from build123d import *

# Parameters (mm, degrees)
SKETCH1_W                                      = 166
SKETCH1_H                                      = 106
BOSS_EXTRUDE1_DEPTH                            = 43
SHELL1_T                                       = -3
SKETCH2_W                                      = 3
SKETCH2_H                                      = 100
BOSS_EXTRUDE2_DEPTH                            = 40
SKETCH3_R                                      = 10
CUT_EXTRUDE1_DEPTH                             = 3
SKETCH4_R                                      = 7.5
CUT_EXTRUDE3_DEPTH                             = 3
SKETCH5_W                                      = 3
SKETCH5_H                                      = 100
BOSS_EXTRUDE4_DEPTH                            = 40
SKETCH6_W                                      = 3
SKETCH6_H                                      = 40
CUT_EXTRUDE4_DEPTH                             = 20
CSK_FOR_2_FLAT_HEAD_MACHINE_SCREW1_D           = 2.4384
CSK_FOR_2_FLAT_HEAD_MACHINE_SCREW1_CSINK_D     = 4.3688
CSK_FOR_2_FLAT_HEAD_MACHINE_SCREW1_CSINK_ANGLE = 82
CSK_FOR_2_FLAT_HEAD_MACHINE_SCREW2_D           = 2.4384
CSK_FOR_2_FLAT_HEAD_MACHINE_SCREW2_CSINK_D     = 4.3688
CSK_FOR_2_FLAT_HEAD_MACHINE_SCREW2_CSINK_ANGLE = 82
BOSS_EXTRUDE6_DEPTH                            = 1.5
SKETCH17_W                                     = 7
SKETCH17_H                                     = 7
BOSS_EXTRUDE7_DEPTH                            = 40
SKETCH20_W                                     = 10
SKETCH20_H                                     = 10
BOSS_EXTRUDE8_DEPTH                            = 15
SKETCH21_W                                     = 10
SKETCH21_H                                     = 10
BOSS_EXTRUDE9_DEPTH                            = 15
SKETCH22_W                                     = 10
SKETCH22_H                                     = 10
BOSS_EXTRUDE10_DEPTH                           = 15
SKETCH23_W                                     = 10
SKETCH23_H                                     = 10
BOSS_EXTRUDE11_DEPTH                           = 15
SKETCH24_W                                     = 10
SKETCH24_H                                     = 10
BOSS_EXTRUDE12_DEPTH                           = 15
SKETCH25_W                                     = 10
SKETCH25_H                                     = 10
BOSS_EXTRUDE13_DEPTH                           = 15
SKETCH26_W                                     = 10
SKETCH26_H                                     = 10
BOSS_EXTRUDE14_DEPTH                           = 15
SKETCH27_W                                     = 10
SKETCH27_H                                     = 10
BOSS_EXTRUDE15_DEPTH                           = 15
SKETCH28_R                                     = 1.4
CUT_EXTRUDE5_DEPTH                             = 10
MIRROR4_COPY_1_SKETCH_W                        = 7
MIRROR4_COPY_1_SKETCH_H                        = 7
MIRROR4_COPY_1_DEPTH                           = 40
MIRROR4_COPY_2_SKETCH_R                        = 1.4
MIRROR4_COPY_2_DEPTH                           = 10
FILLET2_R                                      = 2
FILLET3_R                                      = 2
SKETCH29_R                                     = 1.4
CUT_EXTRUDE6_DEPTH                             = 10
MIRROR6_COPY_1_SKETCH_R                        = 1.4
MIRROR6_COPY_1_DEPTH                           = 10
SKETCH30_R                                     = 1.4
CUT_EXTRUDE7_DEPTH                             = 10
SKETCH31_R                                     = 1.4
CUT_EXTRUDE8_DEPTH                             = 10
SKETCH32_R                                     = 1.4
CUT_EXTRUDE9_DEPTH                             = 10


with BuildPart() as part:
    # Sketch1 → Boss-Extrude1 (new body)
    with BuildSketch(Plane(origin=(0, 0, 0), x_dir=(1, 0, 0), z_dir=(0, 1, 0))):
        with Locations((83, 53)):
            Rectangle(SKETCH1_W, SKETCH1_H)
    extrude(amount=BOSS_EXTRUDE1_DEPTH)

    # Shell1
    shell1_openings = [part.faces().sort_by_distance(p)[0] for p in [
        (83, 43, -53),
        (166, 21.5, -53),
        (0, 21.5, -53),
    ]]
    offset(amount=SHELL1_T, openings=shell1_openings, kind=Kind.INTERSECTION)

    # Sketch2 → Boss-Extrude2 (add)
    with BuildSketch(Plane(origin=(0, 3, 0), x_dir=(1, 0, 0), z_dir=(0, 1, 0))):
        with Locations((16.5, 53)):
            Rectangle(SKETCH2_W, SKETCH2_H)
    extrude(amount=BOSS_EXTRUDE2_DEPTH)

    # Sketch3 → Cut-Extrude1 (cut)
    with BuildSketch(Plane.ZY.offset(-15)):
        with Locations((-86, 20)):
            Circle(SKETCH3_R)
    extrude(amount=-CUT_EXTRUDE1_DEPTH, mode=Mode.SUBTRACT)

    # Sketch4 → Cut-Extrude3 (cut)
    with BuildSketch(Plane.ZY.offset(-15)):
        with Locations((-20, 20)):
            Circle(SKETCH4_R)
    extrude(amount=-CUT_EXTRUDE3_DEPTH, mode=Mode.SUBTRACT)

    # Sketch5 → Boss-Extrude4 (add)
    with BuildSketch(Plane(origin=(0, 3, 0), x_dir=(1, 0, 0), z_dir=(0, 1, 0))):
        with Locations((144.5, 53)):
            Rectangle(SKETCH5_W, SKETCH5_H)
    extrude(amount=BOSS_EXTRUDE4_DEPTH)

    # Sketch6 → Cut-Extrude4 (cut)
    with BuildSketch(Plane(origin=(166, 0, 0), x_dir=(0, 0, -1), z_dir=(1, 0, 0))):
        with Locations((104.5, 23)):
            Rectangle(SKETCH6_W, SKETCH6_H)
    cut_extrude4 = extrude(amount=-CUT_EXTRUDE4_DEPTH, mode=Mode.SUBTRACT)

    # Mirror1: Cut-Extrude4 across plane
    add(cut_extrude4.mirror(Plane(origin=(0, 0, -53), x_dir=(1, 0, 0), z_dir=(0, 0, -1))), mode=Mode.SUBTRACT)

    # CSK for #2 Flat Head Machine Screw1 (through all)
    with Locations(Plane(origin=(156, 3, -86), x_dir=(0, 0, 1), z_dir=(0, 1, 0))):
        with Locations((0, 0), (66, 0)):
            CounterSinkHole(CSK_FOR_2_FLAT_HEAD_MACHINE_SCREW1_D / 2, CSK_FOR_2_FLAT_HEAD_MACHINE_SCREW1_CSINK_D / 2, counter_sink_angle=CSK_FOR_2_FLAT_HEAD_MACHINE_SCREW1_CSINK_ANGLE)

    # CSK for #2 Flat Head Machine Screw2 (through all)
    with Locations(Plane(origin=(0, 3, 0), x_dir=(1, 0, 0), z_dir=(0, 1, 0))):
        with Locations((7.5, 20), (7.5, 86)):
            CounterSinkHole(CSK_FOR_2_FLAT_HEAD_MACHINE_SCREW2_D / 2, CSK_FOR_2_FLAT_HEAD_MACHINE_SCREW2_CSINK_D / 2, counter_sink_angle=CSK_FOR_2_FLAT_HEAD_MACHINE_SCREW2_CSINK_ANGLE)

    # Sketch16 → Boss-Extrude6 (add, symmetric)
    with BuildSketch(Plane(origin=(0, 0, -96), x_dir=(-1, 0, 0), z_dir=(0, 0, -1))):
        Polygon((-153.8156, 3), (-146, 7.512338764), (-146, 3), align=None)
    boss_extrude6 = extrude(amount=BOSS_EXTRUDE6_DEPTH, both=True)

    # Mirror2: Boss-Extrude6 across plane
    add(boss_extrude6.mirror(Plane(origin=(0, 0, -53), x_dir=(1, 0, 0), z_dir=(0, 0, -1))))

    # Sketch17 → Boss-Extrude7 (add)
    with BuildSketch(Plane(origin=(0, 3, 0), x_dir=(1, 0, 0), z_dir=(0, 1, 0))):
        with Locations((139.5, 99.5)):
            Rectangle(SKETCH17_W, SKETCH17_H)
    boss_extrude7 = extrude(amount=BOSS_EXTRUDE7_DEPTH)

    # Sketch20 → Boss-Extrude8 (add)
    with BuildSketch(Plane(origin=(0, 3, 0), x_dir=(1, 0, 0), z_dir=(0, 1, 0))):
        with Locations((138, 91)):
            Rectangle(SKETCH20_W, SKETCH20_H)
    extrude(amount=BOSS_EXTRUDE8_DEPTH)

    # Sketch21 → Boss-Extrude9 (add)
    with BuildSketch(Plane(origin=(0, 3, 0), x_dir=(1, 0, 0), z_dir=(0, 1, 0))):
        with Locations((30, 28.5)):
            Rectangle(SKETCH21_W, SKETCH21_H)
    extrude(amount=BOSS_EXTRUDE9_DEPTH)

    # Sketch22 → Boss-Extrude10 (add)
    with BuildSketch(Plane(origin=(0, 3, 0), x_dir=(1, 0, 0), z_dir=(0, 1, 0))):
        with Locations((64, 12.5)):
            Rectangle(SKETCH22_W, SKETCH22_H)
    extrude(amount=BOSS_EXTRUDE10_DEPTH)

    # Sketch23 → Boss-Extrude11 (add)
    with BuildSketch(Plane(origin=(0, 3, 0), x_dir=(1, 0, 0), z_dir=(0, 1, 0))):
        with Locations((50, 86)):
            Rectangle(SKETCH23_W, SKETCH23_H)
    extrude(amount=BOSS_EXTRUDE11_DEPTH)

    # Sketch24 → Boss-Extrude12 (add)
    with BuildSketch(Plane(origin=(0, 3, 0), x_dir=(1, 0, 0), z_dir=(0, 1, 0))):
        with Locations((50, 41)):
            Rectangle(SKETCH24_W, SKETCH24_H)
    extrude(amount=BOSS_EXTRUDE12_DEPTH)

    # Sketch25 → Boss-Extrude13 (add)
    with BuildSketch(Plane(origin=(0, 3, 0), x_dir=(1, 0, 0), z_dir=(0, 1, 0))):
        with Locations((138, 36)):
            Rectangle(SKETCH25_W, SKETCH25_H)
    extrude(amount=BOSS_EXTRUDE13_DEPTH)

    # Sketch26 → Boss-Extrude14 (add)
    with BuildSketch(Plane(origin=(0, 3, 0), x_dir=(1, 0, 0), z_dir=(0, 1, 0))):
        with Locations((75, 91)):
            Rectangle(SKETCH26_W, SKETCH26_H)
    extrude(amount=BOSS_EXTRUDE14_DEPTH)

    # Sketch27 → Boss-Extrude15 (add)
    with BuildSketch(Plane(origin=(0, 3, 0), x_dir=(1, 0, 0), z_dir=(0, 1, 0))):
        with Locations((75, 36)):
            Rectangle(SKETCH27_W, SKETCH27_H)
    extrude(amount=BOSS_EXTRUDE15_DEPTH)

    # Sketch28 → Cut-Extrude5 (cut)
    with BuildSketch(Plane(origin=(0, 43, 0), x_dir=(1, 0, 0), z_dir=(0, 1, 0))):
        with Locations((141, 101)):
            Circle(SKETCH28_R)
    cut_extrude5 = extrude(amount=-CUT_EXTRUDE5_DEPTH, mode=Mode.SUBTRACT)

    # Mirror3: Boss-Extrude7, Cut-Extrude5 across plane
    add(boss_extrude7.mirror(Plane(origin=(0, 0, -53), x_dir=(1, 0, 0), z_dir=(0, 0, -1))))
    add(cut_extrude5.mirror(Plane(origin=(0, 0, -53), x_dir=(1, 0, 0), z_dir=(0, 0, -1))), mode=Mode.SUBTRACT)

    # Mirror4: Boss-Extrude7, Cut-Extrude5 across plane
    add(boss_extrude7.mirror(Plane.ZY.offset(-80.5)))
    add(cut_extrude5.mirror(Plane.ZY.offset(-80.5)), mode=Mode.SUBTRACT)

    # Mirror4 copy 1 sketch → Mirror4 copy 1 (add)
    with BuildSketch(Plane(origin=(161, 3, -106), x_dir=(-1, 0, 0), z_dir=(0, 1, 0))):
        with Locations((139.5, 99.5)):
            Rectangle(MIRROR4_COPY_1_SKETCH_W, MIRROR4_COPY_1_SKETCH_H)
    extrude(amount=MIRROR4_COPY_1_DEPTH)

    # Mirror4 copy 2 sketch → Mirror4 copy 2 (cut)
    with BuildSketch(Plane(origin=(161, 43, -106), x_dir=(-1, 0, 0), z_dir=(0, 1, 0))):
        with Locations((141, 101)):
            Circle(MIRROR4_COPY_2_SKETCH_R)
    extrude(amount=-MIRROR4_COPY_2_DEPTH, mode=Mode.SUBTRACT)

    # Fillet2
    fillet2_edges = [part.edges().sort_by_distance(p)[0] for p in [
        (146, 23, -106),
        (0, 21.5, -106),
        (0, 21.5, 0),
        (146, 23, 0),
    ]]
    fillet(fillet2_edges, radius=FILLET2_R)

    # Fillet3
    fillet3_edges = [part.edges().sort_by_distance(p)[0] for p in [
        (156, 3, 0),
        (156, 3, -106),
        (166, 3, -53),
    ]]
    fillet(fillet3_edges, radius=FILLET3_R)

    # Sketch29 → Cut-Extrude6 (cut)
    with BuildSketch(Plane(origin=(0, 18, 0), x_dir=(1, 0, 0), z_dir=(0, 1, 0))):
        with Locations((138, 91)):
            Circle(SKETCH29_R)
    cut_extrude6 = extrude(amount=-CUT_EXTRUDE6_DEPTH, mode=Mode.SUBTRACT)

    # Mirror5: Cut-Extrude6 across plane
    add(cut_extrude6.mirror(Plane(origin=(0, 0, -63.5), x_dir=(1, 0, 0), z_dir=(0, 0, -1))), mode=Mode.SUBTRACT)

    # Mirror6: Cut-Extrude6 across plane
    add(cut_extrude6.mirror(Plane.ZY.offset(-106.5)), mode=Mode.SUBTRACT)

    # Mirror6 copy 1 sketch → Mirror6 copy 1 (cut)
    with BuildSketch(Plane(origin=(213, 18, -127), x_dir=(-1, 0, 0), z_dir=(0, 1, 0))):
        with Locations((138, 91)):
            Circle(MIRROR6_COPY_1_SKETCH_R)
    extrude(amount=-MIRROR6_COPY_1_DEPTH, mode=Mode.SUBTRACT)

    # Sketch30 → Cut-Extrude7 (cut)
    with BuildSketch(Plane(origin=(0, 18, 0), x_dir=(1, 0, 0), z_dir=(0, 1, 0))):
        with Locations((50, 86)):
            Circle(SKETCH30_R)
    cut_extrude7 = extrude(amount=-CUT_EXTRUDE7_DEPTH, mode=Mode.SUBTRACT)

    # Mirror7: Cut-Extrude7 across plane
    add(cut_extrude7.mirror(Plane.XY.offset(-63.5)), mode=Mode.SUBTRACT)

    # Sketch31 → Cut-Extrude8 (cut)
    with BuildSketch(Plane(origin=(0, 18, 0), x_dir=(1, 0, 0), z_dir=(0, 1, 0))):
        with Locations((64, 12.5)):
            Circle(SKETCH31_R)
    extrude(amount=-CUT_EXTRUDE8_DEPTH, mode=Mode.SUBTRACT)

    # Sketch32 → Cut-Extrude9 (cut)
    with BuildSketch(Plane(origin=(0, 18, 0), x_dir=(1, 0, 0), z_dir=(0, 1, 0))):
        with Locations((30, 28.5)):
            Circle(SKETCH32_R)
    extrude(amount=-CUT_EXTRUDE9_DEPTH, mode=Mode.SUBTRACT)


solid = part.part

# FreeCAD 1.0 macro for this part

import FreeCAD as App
import Part
import Sketcher
Q = App.Units.Quantity


def edges_at(feature, points):
    """Names of the edges that pass closest to the given points."""
    edges = feature.Shape.Edges
    near = lambda p: min(range(len(edges)), key=lambda i: edges[i].distToShape(Part.Vertex(*p))[0])
    return sorted({f"Edge{near(p) + 1}" for p in points})


def faces_at(feature, points):
    """Names of the faces that lie closest to the given points."""
    faces = feature.Shape.Faces
    near = lambda p: min(range(len(faces)), key=lambda i: faces[i].distToShape(Part.Vertex(*p))[0])
    return sorted({f"Face{near(p) + 1}" for p in points})

doc = App.newDocument("Part")
body = doc.addObject("PartDesign::Body", "Body")

# Sketch on XZ plane
sketch1 = body.newObject("Sketcher::SketchObject", "Sketch")
sketch1.AttachmentSupport = (doc.getObject("XZ_Plane"), [""])
sketch1.MapMode = "FlatFace"
sketch1.addGeometry([
    Part.LineSegment(App.Vector(0, -106, 0), App.Vector(0, 0, 0)),
    Part.LineSegment(App.Vector(0, 0, 0), App.Vector(166, 0, 0)),
    Part.LineSegment(App.Vector(166, 0, 0), App.Vector(166, -106, 0)),
    Part.LineSegment(App.Vector(166, -106, 0), App.Vector(0, -106, 0)),
], False)
sketch1.addConstraint([
    Sketcher.Constraint("Coincident", 0, 2, 1, 1),
    Sketcher.Constraint("Coincident", 1, 2, 2, 1),
    Sketcher.Constraint("Coincident", 2, 2, 3, 1),
    Sketcher.Constraint("Coincident", 3, 2, 0, 1),
    Sketcher.Constraint("Vertical", 0),
    Sketcher.Constraint("Horizontal", 1),
    Sketcher.Constraint("Vertical", 2),
    Sketcher.Constraint("Horizontal", 3),
    Sketcher.Constraint("Coincident", 0, 2, -1, 1),
    Sketcher.Constraint("DistanceX", 1, 1, 1, 2, 166.0),
    Sketcher.Constraint("DistanceY", 0, 1, 0, 2, 106.0),
])
pad1 = body.newObject("PartDesign::Pad", "Pad")
pad1.Profile = sketch1
pad1.Length = 43
pad1.Reversed = True
doc.recompute()

thickness = body.newObject("PartDesign::Thickness", "Thickness")
thickness.Base = (pad1, faces_at(pad1, [(83, 43, -53), (166, 21.5, -53), (0, 21.5, -53)]))
thickness.Value = 3
thickness.Reversed = True
thickness.Join = "Intersection"

# Sketch on XZ plane
sketch2 = body.newObject("Sketcher::SketchObject", "Sketch001")
sketch2.AttachmentSupport = (doc.getObject("XZ_Plane"), [""])
sketch2.MapMode = "FlatFace"
sketch2.AttachmentOffset = App.Placement(App.Vector(0, 0, -3), App.Rotation())
sketch2.addGeometry([
    Part.LineSegment(App.Vector(15, -103, 0), App.Vector(15, -3, 0)),
    Part.LineSegment(App.Vector(15, -3, 0), App.Vector(18, -3, 0)),
    Part.LineSegment(App.Vector(18, -3, 0), App.Vector(18, -103, 0)),
    Part.LineSegment(App.Vector(18, -103, 0), App.Vector(15, -103, 0)),
], False)
sketch2.addConstraint([
    Sketcher.Constraint("Coincident", 0, 2, 1, 1),
    Sketcher.Constraint("Coincident", 1, 2, 2, 1),
    Sketcher.Constraint("Coincident", 2, 2, 3, 1),
    Sketcher.Constraint("Coincident", 3, 2, 0, 1),
    Sketcher.Constraint("Vertical", 0),
    Sketcher.Constraint("Horizontal", 1),
    Sketcher.Constraint("Vertical", 2),
    Sketcher.Constraint("Horizontal", 3),
    Sketcher.Constraint("DistanceX", 1, 1, 1, 2, 3.0),
    Sketcher.Constraint("DistanceY", 0, 1, 0, 2, 100.0),
    Sketcher.Constraint("DistanceX", -1, 1, 0, 2, 15.0),
    Sketcher.Constraint("DistanceY", 0, 2, -1, 1, 3.0),
])
pad2 = body.newObject("PartDesign::Pad", "Pad001")
pad2.Profile = sketch2
pad2.Length = 40
pad2.Reversed = True

# Sketch on YZ plane
sketch3 = body.newObject("Sketcher::SketchObject", "Sketch002")
sketch3.AttachmentSupport = (doc.getObject("YZ_Plane"), [""])
sketch3.MapMode = "FlatFace"
sketch3.AttachmentOffset = App.Placement(App.Vector(0, 0, 15), App.Rotation())
sketch3.addGeometry(Part.Circle(App.Vector(20, -86, 0), App.Vector(0, 0, 1), 10), False)
sketch3.addConstraint([
    Sketcher.Constraint("Diameter", 0, 20.0),
    Sketcher.Constraint("DistanceX", -1, 1, 0, 3, 20.0),
    Sketcher.Constraint("DistanceY", 0, 3, -1, 1, 86.0),
])
pocket1 = body.newObject("PartDesign::Pocket", "Pocket")
pocket1.Profile = sketch3
pocket1.Length = 3
pocket1.Reversed = True

# Sketch on YZ plane
sketch4 = body.newObject("Sketcher::SketchObject", "Sketch003")
sketch4.AttachmentSupport = (doc.getObject("YZ_Plane"), [""])
sketch4.MapMode = "FlatFace"
sketch4.AttachmentOffset = App.Placement(App.Vector(0, 0, 15), App.Rotation())
sketch4.addGeometry(Part.Circle(App.Vector(20, -20, 0), App.Vector(0, 0, 1), 8), False)
sketch4.addConstraint([
    Sketcher.Constraint("Diameter", 0, 15.0),
    Sketcher.Constraint("DistanceX", -1, 1, 0, 3, 20.0),
    Sketcher.Constraint("DistanceY", 0, 3, -1, 1, 20.0),
])
pocket2 = body.newObject("PartDesign::Pocket", "Pocket001")
pocket2.Profile = sketch4
pocket2.Length = 3
pocket2.Reversed = True

# Sketch on XZ plane
sketch5 = body.newObject("Sketcher::SketchObject", "Sketch004")
sketch5.AttachmentSupport = (doc.getObject("XZ_Plane"), [""])
sketch5.MapMode = "FlatFace"
sketch5.AttachmentOffset = App.Placement(App.Vector(0, 0, -3), App.Rotation())
sketch5.addGeometry([
    Part.LineSegment(App.Vector(143, -103, 0), App.Vector(143, -3, 0)),
    Part.LineSegment(App.Vector(143, -3, 0), App.Vector(146, -3, 0)),
    Part.LineSegment(App.Vector(146, -3, 0), App.Vector(146, -103, 0)),
    Part.LineSegment(App.Vector(146, -103, 0), App.Vector(143, -103, 0)),
], False)
sketch5.addConstraint([
    Sketcher.Constraint("Coincident", 0, 2, 1, 1),
    Sketcher.Constraint("Coincident", 1, 2, 2, 1),
    Sketcher.Constraint("Coincident", 2, 2, 3, 1),
    Sketcher.Constraint("Coincident", 3, 2, 0, 1),
    Sketcher.Constraint("Vertical", 0),
    Sketcher.Constraint("Horizontal", 1),
    Sketcher.Constraint("Vertical", 2),
    Sketcher.Constraint("Horizontal", 3),
    Sketcher.Constraint("DistanceX", 1, 1, 1, 2, 3.0),
    Sketcher.Constraint("DistanceY", 0, 1, 0, 2, 100.0),
    Sketcher.Constraint("DistanceX", -1, 1, 0, 2, 143.0),
    Sketcher.Constraint("DistanceY", 0, 2, -1, 1, 3.0),
])
pad3 = body.newObject("PartDesign::Pad", "Pad002")
pad3.Profile = sketch5
pad3.Length = 40
pad3.Reversed = True

# Sketch on YZ plane
sketch6 = body.newObject("Sketcher::SketchObject", "Sketch005")
sketch6.AttachmentSupport = (doc.getObject("YZ_Plane"), [""])
sketch6.MapMode = "FlatFace"
sketch6.AttachmentOffset = App.Placement(App.Vector(0, 0, 166), App.Rotation())
sketch6.addGeometry([
    Part.LineSegment(App.Vector(43, -103, 0), App.Vector(3, -103, 0)),
    Part.LineSegment(App.Vector(3, -103, 0), App.Vector(3, -106, 0)),
    Part.LineSegment(App.Vector(3, -106, 0), App.Vector(43, -106, 0)),
    Part.LineSegment(App.Vector(43, -106, 0), App.Vector(43, -103, 0)),
], False)
sketch6.addConstraint([
    Sketcher.Constraint("Coincident", 0, 2, 1, 1),
    Sketcher.Constraint("Coincident", 1, 2, 2, 1),
    Sketcher.Constraint("Coincident", 2, 2, 3, 1),
    Sketcher.Constraint("Coincident", 3, 2, 0, 1),
    Sketcher.Constraint("Horizontal", 0),
    Sketcher.Constraint("Vertical", 1),
    Sketcher.Constraint("Horizontal", 2),
    Sketcher.Constraint("Vertical", 3),
    Sketcher.Constraint("DistanceX", 0, 2, 0, 1, 40.0),
    Sketcher.Constraint("DistanceY", 1, 2, 1, 1, 3.0),
    Sketcher.Constraint("DistanceX", -1, 1, 0, 2, 3.0),
    Sketcher.Constraint("DistanceY", 0, 2, -1, 1, 103.0),
])
pocket3 = body.newObject("PartDesign::Pocket", "Pocket002")
pocket3.Profile = sketch6
pocket3.Length = 20
doc.recompute()

datumplane = body.newObject("PartDesign::Plane", "DatumPlane")
datumplane.AttachmentSupport = (doc.getObject("XY_Plane"), [""])
datumplane.MapMode = "FlatFace"
datumplane.AttachmentOffset = App.Placement(App.Vector(0, 0, -53), App.Rotation())
mirrored = body.newObject("PartDesign::Mirrored", "Mirrored")
mirrored.Originals = [pocket3]
mirrored.MirrorPlane = (datumplane, [""])
body.Tip = mirrored

# Sketch on XZ plane
sketch7 = body.newObject("Sketcher::SketchObject", "Sketch006")
sketch7.AttachmentSupport = (doc.getObject("XZ_Plane"), [""])
sketch7.MapMode = "FlatFace"
sketch7.AttachmentOffset = App.Placement(App.Vector(0, 0, -3), App.Rotation())
sketch7.addGeometry([
    Part.Circle(App.Vector(156, -86, 0), App.Vector(0, 0, 1), 1.2),
    Part.Circle(App.Vector(156, -20, 0), App.Vector(0, 0, 1), 1.2),
], False)
sketch7.addConstraint([
    Sketcher.Constraint("Equal", 0, 1),
    Sketcher.Constraint("Vertical", 0, 3, 1, 3),
    Sketcher.Constraint("DistanceX", -1, 1, 0, 3, 156.0),
    Sketcher.Constraint("DistanceY", 0, 3, -1, 1, 86.0),
    Sketcher.Constraint("DistanceY", 1, 3, -1, 1, 20.0),
    Sketcher.Constraint("Diameter", 0, 2.4384),
])
doc.recompute()
hole = body.newObject("PartDesign::Hole", "Hole")
hole.Profile = sketch7
hole.ThreadType = "None"
hole.Diameter = 2.4384
hole.DepthType = "ThroughAll"
hole.HoleCutType = "Countersink"
hole.HoleCutDiameter = 4.3688
hole.HoleCutCountersinkAngle = 82
hole.Reversed = True

# Sketch on XZ plane
sketch8 = body.newObject("Sketcher::SketchObject", "Sketch007")
sketch8.AttachmentSupport = (doc.getObject("XZ_Plane"), [""])
sketch8.MapMode = "FlatFace"
sketch8.AttachmentOffset = App.Placement(App.Vector(0, 0, -3), App.Rotation())
sketch8.addGeometry([
    Part.Circle(App.Vector(7.5, -20, 0), App.Vector(0, 0, 1), 1.2),
    Part.Circle(App.Vector(7.5, -86, 0), App.Vector(0, 0, 1), 1.2),
], False)
sketch8.addConstraint([
    Sketcher.Constraint("Equal", 0, 1),
    Sketcher.Constraint("Vertical", 0, 3, 1, 3),
    Sketcher.Constraint("DistanceY", 0, 3, -1, 1, 20.0),
    Sketcher.Constraint("DistanceY", 1, 3, -1, 1, 86.0),
    Sketcher.Constraint("Diameter", 0, 2.4384),
    Sketcher.Constraint("DistanceX", -1, 1, 0, 3, 7.5),
])
doc.recompute()
hole2 = body.newObject("PartDesign::Hole", "Hole001")
hole2.Profile = sketch8
hole2.ThreadType = "None"
hole2.Diameter = 2.4384
hole2.DepthType = "ThroughAll"
hole2.HoleCutType = "Countersink"
hole2.HoleCutDiameter = 4.3688
hole2.HoleCutCountersinkAngle = 82
hole2.Reversed = True

# Sketch on XY plane
sketch9 = body.newObject("Sketcher::SketchObject", "Sketch008")
sketch9.AttachmentSupport = (doc.getObject("XY_Plane"), [""])
sketch9.MapMode = "FlatFace"
sketch9.AttachmentOffset = App.Placement(App.Vector(0, 0, -96), App.Rotation())
sketch9.addGeometry([
    Part.LineSegment(App.Vector(146, 7.5, 0), App.Vector(153.8, 3, 0)),
    Part.LineSegment(App.Vector(153.8, 3, 0), App.Vector(146, 3, 0)),
    Part.LineSegment(App.Vector(146, 3, 0), App.Vector(146, 7.5, 0)),
], False)
sketch9.addConstraint([
    Sketcher.Constraint("Coincident", 0, 2, 1, 1),
    Sketcher.Constraint("Coincident", 1, 2, 2, 1),
    Sketcher.Constraint("Coincident", 2, 2, 0, 1),
    Sketcher.Constraint("Horizontal", 1),
    Sketcher.Constraint("Vertical", 2),
    Sketcher.Constraint("Angle", 0, Q("-30 deg")),
    Sketcher.Constraint("DistanceY", -1, 1, 0, 2, 3.0),
    Sketcher.Constraint("DistanceX", -1, 1, 1, 2, 146.0),
    Sketcher.Constraint("DistanceX", 1, 2, 1, 1, 7.8156),
])
pad4 = body.newObject("PartDesign::Pad", "Pad003")
pad4.Profile = sketch9
pad4.Length = 3
pad4.Midplane = True
doc.recompute()

datumplane2 = body.newObject("PartDesign::Plane", "DatumPlane001")
datumplane2.AttachmentSupport = (doc.getObject("XY_Plane"), [""])
datumplane2.MapMode = "FlatFace"
datumplane2.AttachmentOffset = App.Placement(App.Vector(0, 0, -53), App.Rotation())
mirrored2 = body.newObject("PartDesign::Mirrored", "Mirrored001")
mirrored2.Originals = [pad4]
mirrored2.MirrorPlane = (datumplane2, [""])
body.Tip = mirrored2

# Sketch on XZ plane
sketch10 = body.newObject("Sketcher::SketchObject", "Sketch009")
sketch10.AttachmentSupport = (doc.getObject("XZ_Plane"), [""])
sketch10.MapMode = "FlatFace"
sketch10.AttachmentOffset = App.Placement(App.Vector(0, 0, -3), App.Rotation())
sketch10.addGeometry([
    Part.LineSegment(App.Vector(136, -103, 0), App.Vector(136, -96, 0)),
    Part.LineSegment(App.Vector(136, -96, 0), App.Vector(143, -96, 0)),
    Part.LineSegment(App.Vector(143, -96, 0), App.Vector(143, -103, 0)),
    Part.LineSegment(App.Vector(143, -103, 0), App.Vector(136, -103, 0)),
], False)
sketch10.addConstraint([
    Sketcher.Constraint("Coincident", 0, 2, 1, 1),
    Sketcher.Constraint("Coincident", 1, 2, 2, 1),
    Sketcher.Constraint("Coincident", 2, 2, 3, 1),
    Sketcher.Constraint("Coincident", 3, 2, 0, 1),
    Sketcher.Constraint("Vertical", 0),
    Sketcher.Constraint("Horizontal", 1),
    Sketcher.Constraint("Vertical", 2),
    Sketcher.Constraint("Horizontal", 3),
    Sketcher.Constraint("Equal", 3, 0),
    Sketcher.Constraint("DistanceX", 1, 1, 1, 2, 7.0),
    Sketcher.Constraint("DistanceX", -1, 1, 0, 2, 136.0),
    Sketcher.Constraint("DistanceY", 0, 2, -1, 1, 96.0),
])
pad5 = body.newObject("PartDesign::Pad", "Pad004")
pad5.Profile = sketch10
pad5.Length = 40
pad5.Reversed = True

# Sketch on XZ plane
sketch11 = body.newObject("Sketcher::SketchObject", "Sketch010")
sketch11.AttachmentSupport = (doc.getObject("XZ_Plane"), [""])
sketch11.MapMode = "FlatFace"
sketch11.AttachmentOffset = App.Placement(App.Vector(0, 0, -3), App.Rotation())
sketch11.addGeometry([
    Part.LineSegment(App.Vector(133, -96, 0), App.Vector(133, -86, 0)),
    Part.LineSegment(App.Vector(133, -86, 0), App.Vector(143, -86, 0)),
    Part.LineSegment(App.Vector(143, -86, 0), App.Vector(143, -96, 0)),
    Part.LineSegment(App.Vector(143, -96, 0), App.Vector(133, -96, 0)),
], False)
sketch11.addConstraint([
    Sketcher.Constraint("Coincident", 0, 2, 1, 1),
    Sketcher.Constraint("Coincident", 1, 2, 2, 1),
    Sketcher.Constraint("Coincident", 2, 2, 3, 1),
    Sketcher.Constraint("Coincident", 3, 2, 0, 1),
    Sketcher.Constraint("Vertical", 0),
    Sketcher.Constraint("Horizontal", 1),
    Sketcher.Constraint("Vertical", 2),
    Sketcher.Constraint("Horizontal", 3),
    Sketcher.Constraint("Equal", 3, 0),
    Sketcher.Constraint("DistanceX", 1, 1, 1, 2, 10.0),
    Sketcher.Constraint("DistanceX", -1, 1, 0, 2, 133.0),
    Sketcher.Constraint("DistanceY", 0, 2, -1, 1, 86.0),
])
pad6 = body.newObject("PartDesign::Pad", "Pad005")
pad6.Profile = sketch11
pad6.Length = 15
pad6.Reversed = True

# Sketch on XZ plane
sketch12 = body.newObject("Sketcher::SketchObject", "Sketch011")
sketch12.AttachmentSupport = (doc.getObject("XZ_Plane"), [""])
sketch12.MapMode = "FlatFace"
sketch12.AttachmentOffset = App.Placement(App.Vector(0, 0, -3), App.Rotation())
sketch12.addGeometry([
    Part.LineSegment(App.Vector(25, -34, 0), App.Vector(25, -24, 0)),
    Part.LineSegment(App.Vector(25, -24, 0), App.Vector(35, -24, 0)),
    Part.LineSegment(App.Vector(35, -24, 0), App.Vector(35, -34, 0)),
    Part.LineSegment(App.Vector(35, -34, 0), App.Vector(25, -34, 0)),
], False)
sketch12.addConstraint([
    Sketcher.Constraint("Coincident", 0, 2, 1, 1),
    Sketcher.Constraint("Coincident", 1, 2, 2, 1),
    Sketcher.Constraint("Coincident", 2, 2, 3, 1),
    Sketcher.Constraint("Coincident", 3, 2, 0, 1),
    Sketcher.Constraint("Vertical", 0),
    Sketcher.Constraint("Horizontal", 1),
    Sketcher.Constraint("Vertical", 2),
    Sketcher.Constraint("Horizontal", 3),
    Sketcher.Constraint("Equal", 3, 0),
    Sketcher.Constraint("DistanceX", 1, 1, 1, 2, 10.0),
    Sketcher.Constraint("DistanceX", -1, 1, 0, 2, 25.0),
    Sketcher.Constraint("DistanceY", 0, 2, -1, 1, 23.5),
])
pad7 = body.newObject("PartDesign::Pad", "Pad006")
pad7.Profile = sketch12
pad7.Length = 15
pad7.Reversed = True

# Sketch on XZ plane
sketch13 = body.newObject("Sketcher::SketchObject", "Sketch012")
sketch13.AttachmentSupport = (doc.getObject("XZ_Plane"), [""])
sketch13.MapMode = "FlatFace"
sketch13.AttachmentOffset = App.Placement(App.Vector(0, 0, -3), App.Rotation())
sketch13.addGeometry([
    Part.LineSegment(App.Vector(59, -18, 0), App.Vector(59, -8, 0)),
    Part.LineSegment(App.Vector(59, -8, 0), App.Vector(69, -8, 0)),
    Part.LineSegment(App.Vector(69, -8, 0), App.Vector(69, -18, 0)),
    Part.LineSegment(App.Vector(69, -18, 0), App.Vector(59, -18, 0)),
], False)
sketch13.addConstraint([
    Sketcher.Constraint("Coincident", 0, 2, 1, 1),
    Sketcher.Constraint("Coincident", 1, 2, 2, 1),
    Sketcher.Constraint("Coincident", 2, 2, 3, 1),
    Sketcher.Constraint("Coincident", 3, 2, 0, 1),
    Sketcher.Constraint("Vertical", 0),
    Sketcher.Constraint("Horizontal", 1),
    Sketcher.Constraint("Vertical", 2),
    Sketcher.Constraint("Horizontal", 3),
    Sketcher.Constraint("Equal", 3, 0),
    Sketcher.Constraint("DistanceX", 1, 1, 1, 2, 10.0),
    Sketcher.Constraint("DistanceX", -1, 1, 0, 2, 59.0),
    Sketcher.Constraint("DistanceY", 0, 2, -1, 1, 7.5),
])
pad8 = body.newObject("PartDesign::Pad", "Pad007")
pad8.Profile = sketch13
pad8.Length = 15
pad8.Reversed = True

# Sketch on XZ plane
sketch14 = body.newObject("Sketcher::SketchObject", "Sketch013")
sketch14.AttachmentSupport = (doc.getObject("XZ_Plane"), [""])
sketch14.MapMode = "FlatFace"
sketch14.AttachmentOffset = App.Placement(App.Vector(0, 0, -3), App.Rotation())
sketch14.addGeometry([
    Part.LineSegment(App.Vector(45, -91, 0), App.Vector(45, -81, 0)),
    Part.LineSegment(App.Vector(45, -81, 0), App.Vector(55, -81, 0)),
    Part.LineSegment(App.Vector(55, -81, 0), App.Vector(55, -91, 0)),
    Part.LineSegment(App.Vector(55, -91, 0), App.Vector(45, -91, 0)),
], False)
sketch14.addConstraint([
    Sketcher.Constraint("Coincident", 0, 2, 1, 1),
    Sketcher.Constraint("Coincident", 1, 2, 2, 1),
    Sketcher.Constraint("Coincident", 2, 2, 3, 1),
    Sketcher.Constraint("Coincident", 3, 2, 0, 1),
    Sketcher.Constraint("Vertical", 0),
    Sketcher.Constraint("Horizontal", 1),
    Sketcher.Constraint("Vertical", 2),
    Sketcher.Constraint("Horizontal", 3),
    Sketcher.Constraint("Equal", 3, 0),
    Sketcher.Constraint("DistanceX", 1, 1, 1, 2, 10.0),
    Sketcher.Constraint("DistanceX", -1, 1, 0, 2, 45.0),
    Sketcher.Constraint("DistanceY", 0, 2, -1, 1, 81.0),
])
pad9 = body.newObject("PartDesign::Pad", "Pad008")
pad9.Profile = sketch14
pad9.Length = 15
pad9.Reversed = True

# Sketch on XZ plane
sketch15 = body.newObject("Sketcher::SketchObject", "Sketch014")
sketch15.AttachmentSupport = (doc.getObject("XZ_Plane"), [""])
sketch15.MapMode = "FlatFace"
sketch15.AttachmentOffset = App.Placement(App.Vector(0, 0, -3), App.Rotation())
sketch15.addGeometry([
    Part.LineSegment(App.Vector(45, -46, 0), App.Vector(45, -36, 0)),
    Part.LineSegment(App.Vector(45, -36, 0), App.Vector(55, -36, 0)),
    Part.LineSegment(App.Vector(55, -36, 0), App.Vector(55, -46, 0)),
    Part.LineSegment(App.Vector(55, -46, 0), App.Vector(45, -46, 0)),
], False)
sketch15.addConstraint([
    Sketcher.Constraint("Coincident", 0, 2, 1, 1),
    Sketcher.Constraint("Coincident", 1, 2, 2, 1),
    Sketcher.Constraint("Coincident", 2, 2, 3, 1),
    Sketcher.Constraint("Coincident", 3, 2, 0, 1),
    Sketcher.Constraint("Vertical", 0),
    Sketcher.Constraint("Horizontal", 1),
    Sketcher.Constraint("Vertical", 2),
    Sketcher.Constraint("Horizontal", 3),
    Sketcher.Constraint("Equal", 3, 0),
    Sketcher.Constraint("DistanceX", 1, 1, 1, 2, 10.0),
    Sketcher.Constraint("DistanceX", -1, 1, 0, 2, 45.0),
    Sketcher.Constraint("DistanceY", 0, 2, -1, 1, 36.0),
])
pad10 = body.newObject("PartDesign::Pad", "Pad009")
pad10.Profile = sketch15
pad10.Length = 15
pad10.Reversed = True

# Sketch on XZ plane
sketch16 = body.newObject("Sketcher::SketchObject", "Sketch015")
sketch16.AttachmentSupport = (doc.getObject("XZ_Plane"), [""])
sketch16.MapMode = "FlatFace"
sketch16.AttachmentOffset = App.Placement(App.Vector(0, 0, -3), App.Rotation())
sketch16.addGeometry([
    Part.LineSegment(App.Vector(133, -41, 0), App.Vector(133, -31, 0)),
    Part.LineSegment(App.Vector(133, -31, 0), App.Vector(143, -31, 0)),
    Part.LineSegment(App.Vector(143, -31, 0), App.Vector(143, -41, 0)),
    Part.LineSegment(App.Vector(143, -41, 0), App.Vector(133, -41, 0)),
], False)
sketch16.addConstraint([
    Sketcher.Constraint("Coincident", 0, 2, 1, 1),
    Sketcher.Constraint("Coincident", 1, 2, 2, 1),
    Sketcher.Constraint("Coincident", 2, 2, 3, 1),
    Sketcher.Constraint("Coincident", 3, 2, 0, 1),
    Sketcher.Constraint("Vertical", 0),
    Sketcher.Constraint("Horizontal", 1),
    Sketcher.Constraint("Vertical", 2),
    Sketcher.Constraint("Horizontal", 3),
    Sketcher.Constraint("Equal", 3, 0),
    Sketcher.Constraint("DistanceX", 1, 1, 1, 2, 10.0),
    Sketcher.Constraint("DistanceX", -1, 1, 0, 2, 133.0),
    Sketcher.Constraint("DistanceY", 0, 2, -1, 1, 31.0),
])
pad11 = body.newObject("PartDesign::Pad", "Pad010")
pad11.Profile = sketch16
pad11.Length = 15
pad11.Reversed = True

# Sketch on XZ plane
sketch17 = body.newObject("Sketcher::SketchObject", "Sketch016")
sketch17.AttachmentSupport = (doc.getObject("XZ_Plane"), [""])
sketch17.MapMode = "FlatFace"
sketch17.AttachmentOffset = App.Placement(App.Vector(0, 0, -3), App.Rotation())
sketch17.addGeometry([
    Part.LineSegment(App.Vector(70, -96, 0), App.Vector(70, -86, 0)),
    Part.LineSegment(App.Vector(70, -86, 0), App.Vector(80, -86, 0)),
    Part.LineSegment(App.Vector(80, -86, 0), App.Vector(80, -96, 0)),
    Part.LineSegment(App.Vector(80, -96, 0), App.Vector(70, -96, 0)),
], False)
sketch17.addConstraint([
    Sketcher.Constraint("Coincident", 0, 2, 1, 1),
    Sketcher.Constraint("Coincident", 1, 2, 2, 1),
    Sketcher.Constraint("Coincident", 2, 2, 3, 1),
    Sketcher.Constraint("Coincident", 3, 2, 0, 1),
    Sketcher.Constraint("Vertical", 0),
    Sketcher.Constraint("Horizontal", 1),
    Sketcher.Constraint("Vertical", 2),
    Sketcher.Constraint("Horizontal", 3),
    Sketcher.Constraint("Equal", 3, 0),
    Sketcher.Constraint("DistanceX", 1, 1, 1, 2, 10.0),
    Sketcher.Constraint("DistanceX", -1, 1, 0, 2, 70.0),
    Sketcher.Constraint("DistanceY", 0, 2, -1, 1, 86.0),
])
pad12 = body.newObject("PartDesign::Pad", "Pad011")
pad12.Profile = sketch17
pad12.Length = 15
pad12.Reversed = True

# Sketch on XZ plane
sketch18 = body.newObject("Sketcher::SketchObject", "Sketch017")
sketch18.AttachmentSupport = (doc.getObject("XZ_Plane"), [""])
sketch18.MapMode = "FlatFace"
sketch18.AttachmentOffset = App.Placement(App.Vector(0, 0, -3), App.Rotation())
sketch18.addGeometry([
    Part.LineSegment(App.Vector(70, -41, 0), App.Vector(70, -31, 0)),
    Part.LineSegment(App.Vector(70, -31, 0), App.Vector(80, -31, 0)),
    Part.LineSegment(App.Vector(80, -31, 0), App.Vector(80, -41, 0)),
    Part.LineSegment(App.Vector(80, -41, 0), App.Vector(70, -41, 0)),
], False)
sketch18.addConstraint([
    Sketcher.Constraint("Coincident", 0, 2, 1, 1),
    Sketcher.Constraint("Coincident", 1, 2, 2, 1),
    Sketcher.Constraint("Coincident", 2, 2, 3, 1),
    Sketcher.Constraint("Coincident", 3, 2, 0, 1),
    Sketcher.Constraint("Vertical", 0),
    Sketcher.Constraint("Horizontal", 1),
    Sketcher.Constraint("Vertical", 2),
    Sketcher.Constraint("Horizontal", 3),
    Sketcher.Constraint("Equal", 3, 0),
    Sketcher.Constraint("DistanceX", 1, 1, 1, 2, 10.0),
    Sketcher.Constraint("DistanceX", -1, 1, 0, 2, 70.0),
    Sketcher.Constraint("DistanceY", 0, 2, -1, 1, 31.0),
])
pad13 = body.newObject("PartDesign::Pad", "Pad012")
pad13.Profile = sketch18
pad13.Length = 15
pad13.Reversed = True

# Sketch on XZ plane
sketch19 = body.newObject("Sketcher::SketchObject", "Sketch018")
sketch19.AttachmentSupport = (doc.getObject("XZ_Plane"), [""])
sketch19.MapMode = "FlatFace"
sketch19.AttachmentOffset = App.Placement(App.Vector(0, 0, -43), App.Rotation())
sketch19.addGeometry(Part.Circle(App.Vector(141, -101, 0), App.Vector(0, 0, 1), 1.4), False)
sketch19.addConstraint([
    Sketcher.Constraint("Diameter", 0, 2.8),
    Sketcher.Constraint("DistanceX", -1, 1, 0, 3, 141.0),
    Sketcher.Constraint("DistanceY", 0, 3, -1, 1, 101.0),
])
pocket4 = body.newObject("PartDesign::Pocket", "Pocket003")
pocket4.Profile = sketch19
pocket4.Length = 10
pocket4.Reversed = True
doc.recompute()

datumplane3 = body.newObject("PartDesign::Plane", "DatumPlane002")
datumplane3.AttachmentSupport = (doc.getObject("XY_Plane"), [""])
datumplane3.MapMode = "FlatFace"
datumplane3.AttachmentOffset = App.Placement(App.Vector(0, 0, -53), App.Rotation())
mirrored3 = body.newObject("PartDesign::Mirrored", "Mirrored002")
mirrored3.Originals = [pad5, pocket4]
mirrored3.MirrorPlane = (datumplane3, [""])
body.Tip = mirrored3
doc.recompute()

datumplane4 = body.newObject("PartDesign::Plane", "DatumPlane003")
datumplane4.AttachmentSupport = (doc.getObject("YZ_Plane"), [""])
datumplane4.MapMode = "FlatFace"
datumplane4.AttachmentOffset = App.Placement(App.Vector(0, 0, 80.5), App.Rotation())
mirrored4 = body.newObject("PartDesign::Mirrored", "Mirrored003")
mirrored4.Originals = [pad5, pocket4]
mirrored4.MirrorPlane = (datumplane4, [""])
body.Tip = mirrored4

# Sketch on XZ plane
sketch20 = body.newObject("Sketcher::SketchObject", "Sketch019")
sketch20.AttachmentSupport = (doc.getObject("XZ_Plane"), [""])
sketch20.MapMode = "FlatFace"
sketch20.AttachmentOffset = App.Placement(App.Vector(0, 0, -3), App.Rotation())
sketch20.addGeometry([
    Part.LineSegment(App.Vector(25, -3, 0), App.Vector(25, -10, 0)),
    Part.LineSegment(App.Vector(25, -10, 0), App.Vector(18, -10, 0)),
    Part.LineSegment(App.Vector(18, -10, 0), App.Vector(18, -3, 0)),
    Part.LineSegment(App.Vector(18, -3, 0), App.Vector(25, -3, 0)),
], False)
sketch20.addConstraint([
    Sketcher.Constraint("Coincident", 0, 2, 1, 1),
    Sketcher.Constraint("Coincident", 1, 2, 2, 1),
    Sketcher.Constraint("Coincident", 2, 2, 3, 1),
    Sketcher.Constraint("Coincident", 3, 2, 0, 1),
    Sketcher.Constraint("Vertical", 0),
    Sketcher.Constraint("Horizontal", 1),
    Sketcher.Constraint("Vertical", 2),
    Sketcher.Constraint("Horizontal", 3),
    Sketcher.Constraint("Equal", 3, 0),
    Sketcher.Constraint("DistanceX", 1, 2, 1, 1, 7.0),
    Sketcher.Constraint("DistanceX", -1, 1, 0, 2, 25.0),
    Sketcher.Constraint("DistanceY", 0, 2, -1, 1, 10.0),
])
pad14 = body.newObject("PartDesign::Pad", "Pad013")
pad14.Profile = sketch20
pad14.Length = 40
pad14.Reversed = True

# Sketch on XZ plane
sketch21 = body.newObject("Sketcher::SketchObject", "Sketch020")
sketch21.AttachmentSupport = (doc.getObject("XZ_Plane"), [""])
sketch21.MapMode = "FlatFace"
sketch21.AttachmentOffset = App.Placement(App.Vector(0, 0, -43), App.Rotation())
sketch21.addGeometry(Part.Circle(App.Vector(20, -5, 0), App.Vector(0, 0, 1), 1.4), False)
sketch21.addConstraint([
    Sketcher.Constraint("Diameter", 0, 2.8),
    Sketcher.Constraint("DistanceX", -1, 1, 0, 3, 20.0),
    Sketcher.Constraint("DistanceY", 0, 3, -1, 1, 5.0),
])
pocket5 = body.newObject("PartDesign::Pocket", "Pocket004")
pocket5.Profile = sketch21
pocket5.Length = 10
pocket5.Reversed = True
doc.recompute()

fillet = body.newObject("PartDesign::Fillet", "Fillet")
fillet.Base = (pocket5, edges_at(pocket5, [
    (146, 23, -106),
    (0, 21.5, -106),
    (0, 21.5, 0),
    (146, 23, 0),
]))
fillet.Radius = 2
doc.recompute()

fillet2 = body.newObject("PartDesign::Fillet", "Fillet001")
fillet2.Base = (fillet, edges_at(fillet, [(155, 3, 0), (155, 3, -106), (166, 3, -53)]))
fillet2.Radius = 2

# Sketch on XZ plane
sketch22 = body.newObject("Sketcher::SketchObject", "Sketch021")
sketch22.AttachmentSupport = (doc.getObject("XZ_Plane"), [""])
sketch22.MapMode = "FlatFace"
sketch22.AttachmentOffset = App.Placement(App.Vector(0, 0, -18), App.Rotation())
sketch22.addGeometry(Part.Circle(App.Vector(138, -91, 0), App.Vector(0, 0, 1), 1.4), False)
sketch22.addConstraint([
    Sketcher.Constraint("Diameter", 0, 2.8),
    Sketcher.Constraint("DistanceX", -1, 1, 0, 3, 138.0),
    Sketcher.Constraint("DistanceY", 0, 3, -1, 1, 91.0),
])
pocket6 = body.newObject("PartDesign::Pocket", "Pocket005")
pocket6.Profile = sketch22
pocket6.Length = 10
pocket6.Reversed = True
doc.recompute()

datumplane5 = body.newObject("PartDesign::Plane", "DatumPlane004")
datumplane5.AttachmentSupport = (doc.getObject("XY_Plane"), [""])
datumplane5.MapMode = "FlatFace"
datumplane5.AttachmentOffset = App.Placement(App.Vector(0, 0, -63.5), App.Rotation())
mirrored5 = body.newObject("PartDesign::Mirrored", "Mirrored004")
mirrored5.Originals = [pocket6]
mirrored5.MirrorPlane = (datumplane5, [""])
body.Tip = mirrored5
doc.recompute()

datumplane6 = body.newObject("PartDesign::Plane", "DatumPlane005")
datumplane6.AttachmentSupport = (doc.getObject("YZ_Plane"), [""])
datumplane6.MapMode = "FlatFace"
datumplane6.AttachmentOffset = App.Placement(App.Vector(0, 0, 106.5), App.Rotation())
mirrored6 = body.newObject("PartDesign::Mirrored", "Mirrored005")
mirrored6.Originals = [pocket6]
mirrored6.MirrorPlane = (datumplane6, [""])
body.Tip = mirrored6

# Sketch on XZ plane
sketch23 = body.newObject("Sketcher::SketchObject", "Sketch022")
sketch23.AttachmentSupport = (doc.getObject("XZ_Plane"), [""])
sketch23.MapMode = "FlatFace"
sketch23.AttachmentOffset = App.Placement(App.Vector(0, 0, -18), App.Rotation())
sketch23.addGeometry(Part.Circle(App.Vector(75, -36, 0), App.Vector(0, 0, 1), 1.4), False)
sketch23.addConstraint([
    Sketcher.Constraint("Diameter", 0, 2.8),
    Sketcher.Constraint("DistanceX", -1, 1, 0, 3, 75.0),
    Sketcher.Constraint("DistanceY", 0, 3, -1, 1, 36.0),
])
pocket7 = body.newObject("PartDesign::Pocket", "Pocket006")
pocket7.Profile = sketch23
pocket7.Length = 10
pocket7.Reversed = True

# Sketch on XZ plane
sketch24 = body.newObject("Sketcher::SketchObject", "Sketch023")
sketch24.AttachmentSupport = (doc.getObject("XZ_Plane"), [""])
sketch24.MapMode = "FlatFace"
sketch24.AttachmentOffset = App.Placement(App.Vector(0, 0, -18), App.Rotation())
sketch24.addGeometry(Part.Circle(App.Vector(50, -86, 0), App.Vector(0, 0, 1), 1.4), False)
sketch24.addConstraint([
    Sketcher.Constraint("Diameter", 0, 2.8),
    Sketcher.Constraint("DistanceX", -1, 1, 0, 3, 50.0),
    Sketcher.Constraint("DistanceY", 0, 3, -1, 1, 86.0),
])
pocket8 = body.newObject("PartDesign::Pocket", "Pocket007")
pocket8.Profile = sketch24
pocket8.Length = 10
pocket8.Reversed = True
doc.recompute()

datumplane7 = body.newObject("PartDesign::Plane", "DatumPlane006")
datumplane7.AttachmentSupport = (doc.getObject("XY_Plane"), [""])
datumplane7.MapMode = "FlatFace"
datumplane7.AttachmentOffset = App.Placement(App.Vector(0, 0, -63.5), App.Rotation())
mirrored7 = body.newObject("PartDesign::Mirrored", "Mirrored006")
mirrored7.Originals = [pocket8]
mirrored7.MirrorPlane = (datumplane7, [""])
body.Tip = mirrored7

# Sketch on XZ plane
sketch25 = body.newObject("Sketcher::SketchObject", "Sketch024")
sketch25.AttachmentSupport = (doc.getObject("XZ_Plane"), [""])
sketch25.MapMode = "FlatFace"
sketch25.AttachmentOffset = App.Placement(App.Vector(0, 0, -18), App.Rotation())
sketch25.addGeometry(Part.Circle(App.Vector(64, -12.5, 0), App.Vector(0, 0, 1), 1.4), False)
sketch25.addConstraint([
    Sketcher.Constraint("Diameter", 0, 2.8),
    Sketcher.Constraint("DistanceX", -1, 1, 0, 3, 64.0),
    Sketcher.Constraint("DistanceY", 0, 3, -1, 1, 12.5),
])
pocket9 = body.newObject("PartDesign::Pocket", "Pocket008")
pocket9.Profile = sketch25
pocket9.Length = 10
pocket9.Reversed = True

# Sketch on XZ plane
sketch26 = body.newObject("Sketcher::SketchObject", "Sketch025")
sketch26.AttachmentSupport = (doc.getObject("XZ_Plane"), [""])
sketch26.MapMode = "FlatFace"
sketch26.AttachmentOffset = App.Placement(App.Vector(0, 0, -18), App.Rotation())
sketch26.addGeometry(Part.Circle(App.Vector(30, -28.5, 0), App.Vector(0, 0, 1), 1.4), False)
sketch26.addConstraint([
    Sketcher.Constraint("Diameter", 0, 2.8),
    Sketcher.Constraint("DistanceX", -1, 1, 0, 3, 30.0),
    Sketcher.Constraint("DistanceY", 0, 3, -1, 1, 28.5),
])
pocket10 = body.newObject("PartDesign::Pocket", "Pocket009")
pocket10.Profile = sketch26
pocket10.Length = 10
pocket10.Reversed = True

doc.recompute()
